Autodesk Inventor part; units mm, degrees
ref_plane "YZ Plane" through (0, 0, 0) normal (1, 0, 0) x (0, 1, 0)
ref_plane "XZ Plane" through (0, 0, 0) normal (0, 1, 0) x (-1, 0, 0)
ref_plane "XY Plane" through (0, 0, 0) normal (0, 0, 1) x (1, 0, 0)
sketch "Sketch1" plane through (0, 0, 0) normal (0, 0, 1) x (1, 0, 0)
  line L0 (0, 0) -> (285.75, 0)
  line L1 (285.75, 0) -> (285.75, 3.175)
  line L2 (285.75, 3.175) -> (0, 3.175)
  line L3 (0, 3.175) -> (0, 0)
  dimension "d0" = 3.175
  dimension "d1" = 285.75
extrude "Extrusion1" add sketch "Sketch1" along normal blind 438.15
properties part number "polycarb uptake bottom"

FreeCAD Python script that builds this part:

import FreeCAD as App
import Part
import Sketcher
from FreeCAD import Vector
Q = App.Units.Quantity


def add_polygon(sketch, points):
    """Adds a closed chain of lines whose ends are joined by coincident constraints."""
    first, n = sketch.GeometryCount, len(points)
    for a, b in zip(points, points[1:] + points[:1]):
        sketch.addGeometry(Part.LineSegment(App.Vector(*a, 0), App.Vector(*b, 0)), False)
    for i in range(n):
        sketch.addConstraint(Sketcher.Constraint("Coincident", first + i, 2, first + (i + 1) % n, 1))

doc = App.newDocument("Part")
body = doc.addObject("PartDesign::Body", "Body")

# Sketch on XY plane
sketch1 = doc.addObject("Sketcher::SketchObject", "Sketch")
body.addObject(sketch1)
sketch1.AttachmentSupport = (doc.XY_Plane, [""])
sketch1.MapMode = "FlatFace"
add_polygon(sketch1, [(0, 3.2), (0, 0), (285.8, 0), (285.8, 3.2)])  # lines 0-3
sketch1.addConstraint([
    Sketcher.Constraint("Vertical", 0),
    Sketcher.Constraint("Horizontal", 1),
    Sketcher.Constraint("Vertical", 2),
    Sketcher.Constraint("Horizontal", 3),
    Sketcher.Constraint("Coincident", 0, 2, -1, 1),
    Sketcher.Constraint("DistanceX", 1, 1, 1, 2, Q("11.25 in")),
    Sketcher.Constraint("DistanceY", 0, 2, 0, 1, Q("0.125 in")),
])
pad1 = doc.addObject("PartDesign::Pad", "Pad")
body.addObject(pad1)
pad1.Profile = sketch1
pad1.Length = Q("17.25 in")

doc.recompute()
